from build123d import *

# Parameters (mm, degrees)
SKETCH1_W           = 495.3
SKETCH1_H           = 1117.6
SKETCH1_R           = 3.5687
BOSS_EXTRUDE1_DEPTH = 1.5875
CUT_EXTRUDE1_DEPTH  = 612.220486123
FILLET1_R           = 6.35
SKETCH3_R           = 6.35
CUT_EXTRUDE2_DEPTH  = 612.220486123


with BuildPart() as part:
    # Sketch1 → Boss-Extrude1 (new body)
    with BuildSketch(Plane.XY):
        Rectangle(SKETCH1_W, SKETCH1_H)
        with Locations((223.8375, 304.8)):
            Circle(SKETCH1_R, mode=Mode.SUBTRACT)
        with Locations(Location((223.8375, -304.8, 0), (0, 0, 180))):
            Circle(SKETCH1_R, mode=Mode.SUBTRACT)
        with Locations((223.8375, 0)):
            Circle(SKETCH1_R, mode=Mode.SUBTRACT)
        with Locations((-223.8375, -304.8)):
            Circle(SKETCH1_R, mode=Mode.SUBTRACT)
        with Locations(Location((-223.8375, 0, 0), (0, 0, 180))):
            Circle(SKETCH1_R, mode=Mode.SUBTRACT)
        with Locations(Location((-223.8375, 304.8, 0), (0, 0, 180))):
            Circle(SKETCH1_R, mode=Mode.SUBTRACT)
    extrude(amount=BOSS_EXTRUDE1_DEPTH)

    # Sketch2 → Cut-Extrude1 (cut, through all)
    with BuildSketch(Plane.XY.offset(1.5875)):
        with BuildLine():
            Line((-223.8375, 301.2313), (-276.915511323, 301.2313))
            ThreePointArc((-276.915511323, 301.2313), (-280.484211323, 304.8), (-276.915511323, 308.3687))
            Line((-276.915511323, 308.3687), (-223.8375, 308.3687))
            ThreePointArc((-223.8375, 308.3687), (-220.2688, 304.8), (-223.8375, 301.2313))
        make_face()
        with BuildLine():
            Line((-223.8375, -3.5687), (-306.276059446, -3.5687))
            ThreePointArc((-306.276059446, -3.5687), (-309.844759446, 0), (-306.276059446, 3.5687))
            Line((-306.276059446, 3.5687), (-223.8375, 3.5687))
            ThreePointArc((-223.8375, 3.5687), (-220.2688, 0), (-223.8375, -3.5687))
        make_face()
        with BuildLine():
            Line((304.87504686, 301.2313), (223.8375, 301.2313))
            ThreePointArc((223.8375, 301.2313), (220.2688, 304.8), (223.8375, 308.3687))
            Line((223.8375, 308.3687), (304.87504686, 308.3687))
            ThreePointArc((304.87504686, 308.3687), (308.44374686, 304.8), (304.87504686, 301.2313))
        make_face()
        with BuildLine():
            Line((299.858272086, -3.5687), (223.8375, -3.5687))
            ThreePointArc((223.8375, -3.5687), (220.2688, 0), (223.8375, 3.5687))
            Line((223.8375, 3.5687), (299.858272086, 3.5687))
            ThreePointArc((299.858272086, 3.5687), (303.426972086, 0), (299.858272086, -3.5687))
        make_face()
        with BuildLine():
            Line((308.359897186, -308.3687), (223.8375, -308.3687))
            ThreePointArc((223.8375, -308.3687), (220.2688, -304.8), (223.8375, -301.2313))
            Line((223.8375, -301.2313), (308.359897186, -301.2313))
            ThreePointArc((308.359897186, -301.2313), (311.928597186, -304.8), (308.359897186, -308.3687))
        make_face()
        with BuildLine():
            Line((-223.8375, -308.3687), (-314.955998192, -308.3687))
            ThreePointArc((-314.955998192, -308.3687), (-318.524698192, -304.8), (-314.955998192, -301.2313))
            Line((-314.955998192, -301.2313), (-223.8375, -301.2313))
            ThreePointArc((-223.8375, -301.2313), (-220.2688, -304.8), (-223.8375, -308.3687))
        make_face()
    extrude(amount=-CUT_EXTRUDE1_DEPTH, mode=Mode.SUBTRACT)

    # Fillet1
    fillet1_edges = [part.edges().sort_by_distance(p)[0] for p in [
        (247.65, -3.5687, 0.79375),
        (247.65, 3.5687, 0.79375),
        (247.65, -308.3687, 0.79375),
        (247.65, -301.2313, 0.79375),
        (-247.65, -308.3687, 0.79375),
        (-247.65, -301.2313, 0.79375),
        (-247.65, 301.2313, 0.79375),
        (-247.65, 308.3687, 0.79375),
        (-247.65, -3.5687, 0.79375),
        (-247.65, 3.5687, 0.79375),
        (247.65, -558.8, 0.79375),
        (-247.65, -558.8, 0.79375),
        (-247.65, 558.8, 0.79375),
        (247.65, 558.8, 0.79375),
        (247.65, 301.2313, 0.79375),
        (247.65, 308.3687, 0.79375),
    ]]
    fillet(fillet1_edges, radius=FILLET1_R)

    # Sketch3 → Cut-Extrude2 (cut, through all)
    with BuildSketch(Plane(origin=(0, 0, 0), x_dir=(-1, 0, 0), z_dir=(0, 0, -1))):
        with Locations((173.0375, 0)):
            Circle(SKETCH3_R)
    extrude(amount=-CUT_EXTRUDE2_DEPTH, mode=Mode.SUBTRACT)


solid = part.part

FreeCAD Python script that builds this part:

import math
import FreeCAD as App
import Part
import Sketcher

V = App.Vector
Q = App.Units.Quantity


def edges_at(feature, points):
    """Names of the edges that pass closest to the given points."""
    edges = feature.Shape.Edges
    near = lambda p: min(range(len(edges)), key=lambda i: edges[i].distToShape(Part.Vertex(*p))[0])
    return sorted({f"Edge{near(p) + 1}" for p in points})

doc = App.newDocument("Part")
body = doc.addObject("PartDesign::Body", "Body")

sketch1 = body.newObject("Sketcher::SketchObject", "Sketch")
sketch1.AttachmentSupport = (doc.getObject("XY_Plane"), [""])
sketch1.MapMode = "FlatFace"
sketch1.addGeometry(Part.LineSegment(V(-247.7, 558.8, 0), V(-247.7, -558.8, 0)), False)
sketch1.addGeometry(Part.LineSegment(V(-247.7, -558.8, 0), V(247.7, -558.8, 0)), False)
sketch1.addGeometry(Part.LineSegment(V(247.7, -558.8, 0), V(247.7, 558.8, 0)), False)
sketch1.addGeometry(Part.LineSegment(V(247.7, 558.8, 0), V(-247.7, 558.8, 0)), False)
sketch1.addGeometry(Part.Circle(V(-223.8, -304.8, 0), V(0, 0, 1), 3.6), False)
sketch1.addGeometry(Part.Circle(V(223.8, -304.8, 0), V(0, 0, 1), 3.6), False)
sketch1.addGeometry(Part.Circle(V(-223.8, 0, 0), V(0, 0, 1), 3.6), False)
sketch1.addGeometry(Part.Circle(V(-223.8, 304.8, 0), V(0, 0, 1), 3.6), False)
sketch1.addGeometry(Part.Circle(V(223.8, 0, 0), V(0, 0, 1), 3.6), False)
sketch1.addGeometry(Part.Circle(V(223.8, 304.8, 0), V(0, 0, 1), 3.6), False)
sketch1.addConstraint(Sketcher.Constraint("Coincident", 0, 2, 1, 1))
sketch1.addConstraint(Sketcher.Constraint("Coincident", 1, 2, 2, 1))
sketch1.addConstraint(Sketcher.Constraint("Coincident", 2, 2, 3, 1))
sketch1.addConstraint(Sketcher.Constraint("Coincident", 3, 2, 0, 1))
sketch1.addConstraint(Sketcher.Constraint("Vertical", 0))
sketch1.addConstraint(Sketcher.Constraint("Horizontal", 1))
sketch1.addConstraint(Sketcher.Constraint("Vertical", 2))
sketch1.addConstraint(Sketcher.Constraint("Horizontal", 3))
sketch1.addConstraint(Sketcher.Constraint("Equal", 4, 5))
sketch1.addConstraint(Sketcher.Constraint("Equal", 5, 6))
sketch1.addConstraint(Sketcher.Constraint("Equal", 6, 7))
sketch1.addConstraint(Sketcher.Constraint("Equal", 7, 8))
sketch1.addConstraint(Sketcher.Constraint("Equal", 8, 9))
sketch1.addConstraint(Sketcher.Constraint("Symmetric", 5, 3, 7, 3, -1, 1))
sketch1.addConstraint(Sketcher.Constraint("Symmetric", 6, 3, 8, 3, -1, 1))
sketch1.addConstraint(Sketcher.Constraint("Symmetric", 4, 3, 9, 3, -1, 1))
sketch1.addConstraint(Sketcher.Constraint("Symmetric", 0, 2, 2, 2, -1, 1))
sketch1.addConstraint(Sketcher.Constraint("Symmetric", 4, 3, 5, 3, -2))
sketch1.addConstraint(Sketcher.Constraint("PointOnObject", 6, 3, -1))
sketch1.addConstraint(Sketcher.Constraint("Vertical", 4, 3, 6, 3))
sketch1.addConstraint(Sketcher.Constraint("DistanceY", 0, 2, 0, 1, Q("44 in")))
sketch1.addConstraint(Sketcher.Constraint("Diameter", 4, Q("0.281 in")))
sketch1.addConstraint(Sketcher.Constraint("DistanceX", 1, 1, 1, 2, Q("19.5 in")))
sketch1.addConstraint(Sketcher.Constraint("DistanceY", 4, 3, -1, 1, Q("12 in")))
sketch1.addConstraint(Sketcher.Constraint("DistanceX", 4, 3, -1, 1, Q("8.8125 in")))
pad1 = body.newObject("PartDesign::Pad", "Pad")
pad1.Profile = sketch1
pad1.Length = Q("0.0625 in")

sketch2 = body.newObject("Sketcher::SketchObject", "Sketch001")
sketch2.AttachmentSupport = (doc.getObject("XY_Plane"), [""])
sketch2.MapMode = "FlatFace"
sketch2.AttachmentOffset = App.Placement(V(0, 0, 0.0625 * 25.4), App.Rotation())
sketch2.addGeometry(Part.LineSegment(V(-276.9, 301.2, 0), V(-223.8, 301.2, 0)), False)
sketch2.addGeometry(Part.ArcOfCircle(Part.Circle(V(-223.8, 304.8, 0), V(0, 0, 1), 3.6), math.radians(-90), math.radians(90)), False)
sketch2.addGeometry(Part.LineSegment(V(-223.8, 308.4, 0), V(-276.9, 308.4, 0)), False)
sketch2.addGeometry(Part.ArcOfCircle(Part.Circle(V(-276.9, 304.8, 0), V(0, 0, 1), 3.6), math.radians(90), math.radians(270)), False)
sketch2.addGeometry(Part.LineSegment(V(-306.3, -3.6, 0), V(-223.8, -3.6, 0)), False)
sketch2.addGeometry(Part.ArcOfCircle(Part.Circle(V(-223.8, 0, 0), V(0, 0, 1), 3.6), math.radians(-90), math.radians(90)), False)
sketch2.addGeometry(Part.LineSegment(V(-223.8, 3.6, 0), V(-306.3, 3.6, 0)), False)
sketch2.addGeometry(Part.ArcOfCircle(Part.Circle(V(-306.3, 0, 0), V(0, 0, 1), 3.6), math.radians(90), math.radians(270)), False)
sketch2.addGeometry(Part.LineSegment(V(223.8, 301.2, 0), V(304.9, 301.2, 0)), False)
sketch2.addGeometry(Part.ArcOfCircle(Part.Circle(V(304.9, 304.8, 0), V(0, 0, 1), 3.6), math.radians(-90), math.radians(90)), False)
sketch2.addGeometry(Part.LineSegment(V(304.9, 308.4, 0), V(223.8, 308.4, 0)), False)
sketch2.addGeometry(Part.ArcOfCircle(Part.Circle(V(223.8, 304.8, 0), V(0, 0, 1), 3.6), math.radians(90), math.radians(270)), False)
sketch2.addGeometry(Part.LineSegment(V(223.8, -3.6, 0), V(299.9, -3.6, 0)), False)
sketch2.addGeometry(Part.ArcOfCircle(Part.Circle(V(299.9, 0, 0), V(0, 0, 1), 3.6), math.radians(-90), math.radians(90)), False)
sketch2.addGeometry(Part.LineSegment(V(299.9, 3.6, 0), V(223.8, 3.6, 0)), False)
sketch2.addGeometry(Part.ArcOfCircle(Part.Circle(V(223.8, 0, 0), V(0, 0, 1), 3.6), math.radians(90), math.radians(270)), False)
sketch2.addGeometry(Part.LineSegment(V(223.8, -308.4, 0), V(308.4, -308.4, 0)), False)
sketch2.addGeometry(Part.ArcOfCircle(Part.Circle(V(308.4, -304.8, 0), V(0, 0, 1), 3.6), math.radians(-90), math.radians(90)), False)
sketch2.addGeometry(Part.LineSegment(V(308.4, -301.2, 0), V(223.8, -301.2, 0)), False)
sketch2.addGeometry(Part.ArcOfCircle(Part.Circle(V(223.8, -304.8, 0), V(0, 0, 1), 3.6), math.radians(90), math.radians(270)), False)
sketch2.addGeometry(Part.LineSegment(V(-315, -308.4, 0), V(-223.8, -308.4, 0)), False)
sketch2.addGeometry(Part.ArcOfCircle(Part.Circle(V(-223.8, -304.8, 0), V(0, 0, 1), 3.6), math.radians(-90), math.radians(90)), False)
sketch2.addGeometry(Part.LineSegment(V(-223.8, -301.2, 0), V(-315, -301.2, 0)), False)
sketch2.addGeometry(Part.ArcOfCircle(Part.Circle(V(-315, -304.8, 0), V(0, 0, 1), 3.6), math.radians(90), math.radians(270)), False)
sketch2.addConstraint(Sketcher.Constraint("Tangent", 0, 2, 1, 1))
sketch2.addConstraint(Sketcher.Constraint("Tangent", 1, 2, 2, 1))
sketch2.addConstraint(Sketcher.Constraint("Tangent", 2, 2, 3, 1))
sketch2.addConstraint(Sketcher.Constraint("Tangent", 3, 2, 0, 1))
sketch2.addConstraint(Sketcher.Constraint("Tangent", 4, 2, 5, 1))
sketch2.addConstraint(Sketcher.Constraint("Tangent", 5, 2, 6, 1))
sketch2.addConstraint(Sketcher.Constraint("Tangent", 6, 2, 7, 1))
sketch2.addConstraint(Sketcher.Constraint("Tangent", 7, 2, 4, 1))
sketch2.addConstraint(Sketcher.Constraint("Tangent", 8, 2, 9, 1))
sketch2.addConstraint(Sketcher.Constraint("Tangent", 9, 2, 10, 1))
sketch2.addConstraint(Sketcher.Constraint("Tangent", 10, 2, 11, 1))
sketch2.addConstraint(Sketcher.Constraint("Tangent", 11, 2, 8, 1))
sketch2.addConstraint(Sketcher.Constraint("Tangent", 12, 2, 13, 1))
sketch2.addConstraint(Sketcher.Constraint("Tangent", 13, 2, 14, 1))
sketch2.addConstraint(Sketcher.Constraint("Tangent", 14, 2, 15, 1))
sketch2.addConstraint(Sketcher.Constraint("Tangent", 15, 2, 12, 1))
sketch2.addConstraint(Sketcher.Constraint("Tangent", 16, 2, 17, 1))
sketch2.addConstraint(Sketcher.Constraint("Tangent", 17, 2, 18, 1))
sketch2.addConstraint(Sketcher.Constraint("Tangent", 18, 2, 19, 1))
sketch2.addConstraint(Sketcher.Constraint("Tangent", 19, 2, 16, 1))
sketch2.addConstraint(Sketcher.Constraint("Tangent", 20, 2, 21, 1))
sketch2.addConstraint(Sketcher.Constraint("Tangent", 21, 2, 22, 1))
sketch2.addConstraint(Sketcher.Constraint("Tangent", 22, 2, 23, 1))
sketch2.addConstraint(Sketcher.Constraint("Tangent", 23, 2, 20, 1))
sketch2.addConstraint(Sketcher.Constraint("Horizontal", 0))
sketch2.addConstraint(Sketcher.Constraint("Horizontal", 2))
sketch2.addConstraint(Sketcher.Constraint("Horizontal", 4))
sketch2.addConstraint(Sketcher.Constraint("Horizontal", 6))
sketch2.addConstraint(Sketcher.Constraint("Horizontal", 8))
sketch2.addConstraint(Sketcher.Constraint("Horizontal", 10))
sketch2.addConstraint(Sketcher.Constraint("Horizontal", 12))
sketch2.addConstraint(Sketcher.Constraint("Horizontal", 14))
sketch2.addConstraint(Sketcher.Constraint("Horizontal", 16))
sketch2.addConstraint(Sketcher.Constraint("Horizontal", 18))
sketch2.addConstraint(Sketcher.Constraint("Horizontal", 20))
sketch2.addConstraint(Sketcher.Constraint("Horizontal", 22))
sketch2.addConstraint(Sketcher.Constraint("Equal", 3, 5))
sketch2.addConstraint(Sketcher.Constraint("Equal", 7, 9))
sketch2.addConstraint(Sketcher.Constraint("Equal", 11, 13))
sketch2.addConstraint(Sketcher.Constraint("Equal", 15, 17))
sketch2.addConstraint(Sketcher.Constraint("Equal", 19, 21))
sketch2.addConstraint(Sketcher.Constraint("Symmetric", 5, 3, 15, 3, -1, 1))
sketch2.addConstraint(Sketcher.Constraint("Symmetric", 1, 3, 19, 3, -1, 1))
sketch2.addConstraint(Sketcher.Constraint("Symmetric", 11, 3, 21, 3, -1, 1))
sketch2.addConstraint(Sketcher.Constraint("Symmetric", 1, 3, 11, 3, -2))
sketch2.addConstraint(Sketcher.Constraint("PointOnObject", 5, 3, -1))
sketch2.addConstraint(Sketcher.Constraint("Vertical", 1, 3, 5, 3))
sketch2.addConstraint(Sketcher.Constraint("DistanceY", -1, 1, 1, 3, Q("12 in")))
sketch2.addConstraint(Sketcher.Constraint("Radius", 1, Q("0.1405 in")))
sketch2.addConstraint(Sketcher.Constraint("DistanceX", 1, 3, -1, 1, Q("8.8125 in")))
sketch2.addConstraint(Sketcher.Constraint("DistanceX", 20, 1, 20, 2, Q("91.118498 mm")))
sketch2.addConstraint(Sketcher.Constraint("DistanceX", 0, 1, 0, 2, Q("53.078011 mm")))
sketch2.addConstraint(Sketcher.Constraint("DistanceX", 4, 1, 4, 2, Q("82.438559 mm")))
sketch2.addConstraint(Sketcher.Constraint("DistanceX", 8, 1, 8, 2, Q("81.037547 mm")))
sketch2.addConstraint(Sketcher.Constraint("DistanceX", 12, 1, 12, 2, Q("76.020772 mm")))
sketch2.addConstraint(Sketcher.Constraint("DistanceX", 16, 1, 16, 2, Q("84.522397 mm")))
pocket1 = body.newObject("PartDesign::Pocket", "Pocket")
pocket1.Profile = sketch2
pocket1.Type = "ThroughAll"
doc.recompute()

fillet = body.newObject("PartDesign::Fillet", "Fillet")
fillet.Base = (pocket1, edges_at(pocket1, [
    (247.65, -3.569, 0.794),
    (247.65, 3.569, 0.794),
    (247.65, -308.369, 0.794),
    (247.65, -301.231, 0.794),
    (-247.65, -308.369, 0.794),
    (-247.65, -301.231, 0.794),
    (-247.65, 301.231, 0.794),
    (-247.65, 308.369, 0.794),
    (-247.65, -3.569, 0.794),
    (-247.65, 3.569, 0.794),
    (247.65, -558.8, 0.794),
    (-247.65, -558.8, 0.794),
    (-247.65, 558.8, 0.794),
    (247.65, 558.8, 0.794),
    (247.65, 301.231, 0.794),
    (247.65, 308.369, 0.794),
]))
fillet.Radius = Q("0.25 in")

sketch3 = body.newObject("Sketcher::SketchObject", "Sketch002")
sketch3.AttachmentSupport = (doc.getObject("XY_Plane"), [""])
sketch3.MapMode = "FlatFace"
sketch3.addGeometry(Part.Circle(V(-173, 0, 0), V(0, 0, 1), 6), False)
sketch3.addConstraint(Sketcher.Constraint("PointOnObject", 0, 3, -1))
sketch3.addConstraint(Sketcher.Constraint("Diameter", 0, Q("0.5 in")))
sketch3.addConstraint(Sketcher.Constraint("DistanceX", 0, 3, -1, 1, Q("6.8125 in")))
pocket2 = body.newObject("PartDesign::Pocket", "Pocket001")
pocket2.Profile = sketch3
pocket2.Type = "ThroughAll"
pocket2.Reversed = True

doc.recompute()
